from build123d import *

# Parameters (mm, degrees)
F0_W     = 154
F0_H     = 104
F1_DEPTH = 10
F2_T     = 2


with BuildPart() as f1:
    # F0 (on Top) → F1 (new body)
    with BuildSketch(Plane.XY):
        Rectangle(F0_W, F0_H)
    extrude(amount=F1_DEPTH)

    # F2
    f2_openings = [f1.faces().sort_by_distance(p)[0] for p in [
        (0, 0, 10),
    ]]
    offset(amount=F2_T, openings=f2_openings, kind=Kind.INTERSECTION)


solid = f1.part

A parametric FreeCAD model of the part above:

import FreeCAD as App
import Part
import Sketcher
from FreeCAD import Vector
Q = App.Units.Quantity


def faces_at(feature, points):
    """Names of the faces that lie closest to the given points."""
    faces = feature.Shape.Faces
    near = lambda p: min(range(len(faces)), key=lambda i: faces[i].distToShape(Part.Vertex(*p))[0])
    return sorted({f"Face{near(p) + 1}" for p in points})

doc = App.newDocument("Part")
body = doc.addObject("PartDesign::Body", "Body")

sketch1 = body.newObject("Sketcher::SketchObject", "Sketch")
sketch1.AttachmentSupport = (doc.getObject("XY_Plane"), [""])
sketch1.MapMode = "FlatFace"
sketch1.addGeometry(Part.LineSegment(Vector(-77, 52, 0), Vector(-77, -52, 0)), False)
sketch1.addGeometry(Part.LineSegment(Vector(-77, -52, 0), Vector(77, -52, 0)), False)
sketch1.addGeometry(Part.LineSegment(Vector(77, -52, 0), Vector(77, 52, 0)), False)
sketch1.addGeometry(Part.LineSegment(Vector(77, 52, 0), Vector(-77, 52, 0)), False)
sketch1.addConstraint(Sketcher.Constraint("Coincident", 0, 2, 1, 1))
sketch1.addConstraint(Sketcher.Constraint("Coincident", 1, 2, 2, 1))
sketch1.addConstraint(Sketcher.Constraint("Coincident", 2, 2, 3, 1))
sketch1.addConstraint(Sketcher.Constraint("Coincident", 3, 2, 0, 1))
sketch1.addConstraint(Sketcher.Constraint("Vertical", 0))
sketch1.addConstraint(Sketcher.Constraint("Horizontal", 1))
sketch1.addConstraint(Sketcher.Constraint("Vertical", 2))
sketch1.addConstraint(Sketcher.Constraint("Horizontal", 3))
sketch1.addConstraint(Sketcher.Constraint("Symmetric", 0, 2, 2, 2, -1, 1))
sketch1.addConstraint(Sketcher.Constraint("DistanceX", 1, 1, 1, 2, Q("154 mm")))
sketch1.addConstraint(Sketcher.Constraint("DistanceY", 0, 2, 0, 1, Q("104 mm")))
pad1 = body.newObject("PartDesign::Pad", "Pad")
pad1.Profile = sketch1
pad1.Length = 10
doc.recompute()

thickness = body.newObject("PartDesign::Thickness", "Thickness")
thickness.Base = (pad1, faces_at(pad1, [(0, 0, 10)]))
thickness.Value = 2
thickness.Reversed = False
thickness.Join = "Intersection"

doc.recompute()
